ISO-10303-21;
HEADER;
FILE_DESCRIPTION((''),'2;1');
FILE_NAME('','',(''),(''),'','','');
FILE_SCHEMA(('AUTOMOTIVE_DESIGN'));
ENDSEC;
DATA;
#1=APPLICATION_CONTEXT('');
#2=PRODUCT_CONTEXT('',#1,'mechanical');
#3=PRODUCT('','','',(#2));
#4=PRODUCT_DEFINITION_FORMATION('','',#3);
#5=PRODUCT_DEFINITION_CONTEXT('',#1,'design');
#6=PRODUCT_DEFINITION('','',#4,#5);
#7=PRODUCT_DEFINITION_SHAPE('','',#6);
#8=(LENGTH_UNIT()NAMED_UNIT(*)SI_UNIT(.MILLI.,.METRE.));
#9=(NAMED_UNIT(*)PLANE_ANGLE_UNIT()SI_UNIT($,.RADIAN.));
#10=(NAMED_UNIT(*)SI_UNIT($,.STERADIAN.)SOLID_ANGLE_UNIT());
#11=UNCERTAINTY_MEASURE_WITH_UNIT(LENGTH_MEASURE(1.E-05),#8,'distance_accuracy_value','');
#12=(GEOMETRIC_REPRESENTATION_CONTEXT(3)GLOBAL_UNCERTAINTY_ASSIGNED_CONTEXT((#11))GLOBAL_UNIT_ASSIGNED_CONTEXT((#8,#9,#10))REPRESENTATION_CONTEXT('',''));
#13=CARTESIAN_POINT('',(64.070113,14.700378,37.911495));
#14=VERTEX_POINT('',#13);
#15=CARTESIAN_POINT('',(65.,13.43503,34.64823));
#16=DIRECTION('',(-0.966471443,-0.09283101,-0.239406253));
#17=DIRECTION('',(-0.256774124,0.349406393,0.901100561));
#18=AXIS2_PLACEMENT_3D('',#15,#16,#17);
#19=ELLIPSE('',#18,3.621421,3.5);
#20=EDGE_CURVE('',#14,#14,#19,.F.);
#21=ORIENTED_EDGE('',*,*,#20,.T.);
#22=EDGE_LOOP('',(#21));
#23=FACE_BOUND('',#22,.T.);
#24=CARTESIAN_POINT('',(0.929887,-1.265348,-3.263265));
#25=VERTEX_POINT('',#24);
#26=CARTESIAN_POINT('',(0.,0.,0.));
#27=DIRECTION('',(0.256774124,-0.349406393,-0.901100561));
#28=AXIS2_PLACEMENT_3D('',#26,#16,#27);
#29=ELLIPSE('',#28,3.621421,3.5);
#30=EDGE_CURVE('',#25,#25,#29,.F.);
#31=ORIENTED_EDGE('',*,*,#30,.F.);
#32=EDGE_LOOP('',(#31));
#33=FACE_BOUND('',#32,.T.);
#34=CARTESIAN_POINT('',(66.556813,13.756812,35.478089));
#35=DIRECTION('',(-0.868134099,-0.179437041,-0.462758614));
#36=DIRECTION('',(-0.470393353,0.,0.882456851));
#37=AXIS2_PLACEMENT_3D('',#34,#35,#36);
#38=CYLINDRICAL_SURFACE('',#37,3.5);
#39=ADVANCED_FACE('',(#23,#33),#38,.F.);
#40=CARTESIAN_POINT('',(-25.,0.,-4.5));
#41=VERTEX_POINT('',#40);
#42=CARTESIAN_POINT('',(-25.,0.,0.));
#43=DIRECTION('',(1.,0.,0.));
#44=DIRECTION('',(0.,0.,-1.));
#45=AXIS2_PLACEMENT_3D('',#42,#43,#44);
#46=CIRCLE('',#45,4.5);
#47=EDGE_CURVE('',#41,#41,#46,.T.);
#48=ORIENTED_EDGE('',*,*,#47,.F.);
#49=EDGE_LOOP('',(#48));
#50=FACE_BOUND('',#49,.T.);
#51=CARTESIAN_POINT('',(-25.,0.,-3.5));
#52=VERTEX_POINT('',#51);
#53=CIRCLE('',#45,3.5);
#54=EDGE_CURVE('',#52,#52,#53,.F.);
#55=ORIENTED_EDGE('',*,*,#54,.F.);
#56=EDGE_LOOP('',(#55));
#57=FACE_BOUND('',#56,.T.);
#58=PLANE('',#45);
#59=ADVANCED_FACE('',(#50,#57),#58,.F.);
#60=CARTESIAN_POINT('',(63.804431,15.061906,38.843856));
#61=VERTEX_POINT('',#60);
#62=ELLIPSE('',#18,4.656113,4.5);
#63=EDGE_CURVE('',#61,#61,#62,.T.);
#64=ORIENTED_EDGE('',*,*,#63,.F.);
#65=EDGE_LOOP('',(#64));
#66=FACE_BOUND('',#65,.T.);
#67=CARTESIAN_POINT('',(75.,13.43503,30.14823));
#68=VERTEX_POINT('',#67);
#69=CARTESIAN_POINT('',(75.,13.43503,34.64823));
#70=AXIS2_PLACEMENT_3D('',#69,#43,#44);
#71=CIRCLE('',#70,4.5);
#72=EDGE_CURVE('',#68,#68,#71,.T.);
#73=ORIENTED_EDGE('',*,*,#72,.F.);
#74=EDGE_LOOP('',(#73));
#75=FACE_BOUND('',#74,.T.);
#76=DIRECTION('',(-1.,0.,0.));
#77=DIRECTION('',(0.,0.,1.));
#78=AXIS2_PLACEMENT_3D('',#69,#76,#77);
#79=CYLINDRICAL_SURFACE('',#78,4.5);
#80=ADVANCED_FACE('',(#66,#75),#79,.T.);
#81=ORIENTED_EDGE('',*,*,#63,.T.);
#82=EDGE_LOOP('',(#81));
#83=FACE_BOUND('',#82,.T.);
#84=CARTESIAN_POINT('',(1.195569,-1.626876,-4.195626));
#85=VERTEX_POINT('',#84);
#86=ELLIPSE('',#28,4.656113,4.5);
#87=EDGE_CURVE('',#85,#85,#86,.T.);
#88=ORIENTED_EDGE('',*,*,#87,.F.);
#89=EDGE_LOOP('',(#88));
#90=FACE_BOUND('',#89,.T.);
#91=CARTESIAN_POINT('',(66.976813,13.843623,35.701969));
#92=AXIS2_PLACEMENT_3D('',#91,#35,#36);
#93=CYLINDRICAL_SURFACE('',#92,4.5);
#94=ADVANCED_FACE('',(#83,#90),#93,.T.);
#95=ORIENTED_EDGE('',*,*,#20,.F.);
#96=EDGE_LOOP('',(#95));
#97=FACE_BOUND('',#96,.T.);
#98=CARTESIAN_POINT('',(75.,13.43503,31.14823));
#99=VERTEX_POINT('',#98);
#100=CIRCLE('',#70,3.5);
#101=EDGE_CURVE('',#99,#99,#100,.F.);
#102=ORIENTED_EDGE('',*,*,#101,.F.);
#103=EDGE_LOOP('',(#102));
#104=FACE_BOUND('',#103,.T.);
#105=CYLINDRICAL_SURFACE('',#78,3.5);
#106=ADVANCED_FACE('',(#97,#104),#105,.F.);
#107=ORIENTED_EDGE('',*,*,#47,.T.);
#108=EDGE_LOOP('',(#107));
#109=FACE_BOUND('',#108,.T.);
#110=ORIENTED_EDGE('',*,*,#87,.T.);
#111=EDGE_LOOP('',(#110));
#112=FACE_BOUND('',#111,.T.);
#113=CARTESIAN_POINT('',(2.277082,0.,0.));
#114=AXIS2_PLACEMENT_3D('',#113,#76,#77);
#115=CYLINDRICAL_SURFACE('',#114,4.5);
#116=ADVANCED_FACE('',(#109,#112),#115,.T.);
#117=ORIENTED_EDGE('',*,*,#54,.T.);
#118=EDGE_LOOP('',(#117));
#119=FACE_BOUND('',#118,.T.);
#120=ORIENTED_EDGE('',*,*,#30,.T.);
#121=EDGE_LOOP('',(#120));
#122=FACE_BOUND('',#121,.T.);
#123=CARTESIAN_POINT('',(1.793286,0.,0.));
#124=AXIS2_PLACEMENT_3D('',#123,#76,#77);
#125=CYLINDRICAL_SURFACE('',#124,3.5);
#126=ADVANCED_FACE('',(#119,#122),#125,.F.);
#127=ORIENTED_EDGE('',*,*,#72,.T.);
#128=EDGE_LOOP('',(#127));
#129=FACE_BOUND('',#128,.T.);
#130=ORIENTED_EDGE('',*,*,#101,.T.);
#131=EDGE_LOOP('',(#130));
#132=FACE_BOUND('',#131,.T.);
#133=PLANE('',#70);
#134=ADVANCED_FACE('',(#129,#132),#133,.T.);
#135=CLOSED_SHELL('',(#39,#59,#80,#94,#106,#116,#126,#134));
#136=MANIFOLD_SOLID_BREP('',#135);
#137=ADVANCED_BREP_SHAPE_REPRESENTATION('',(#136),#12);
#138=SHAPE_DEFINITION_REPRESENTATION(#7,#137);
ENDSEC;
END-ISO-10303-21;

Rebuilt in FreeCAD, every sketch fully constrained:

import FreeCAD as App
import Part
import Sketcher
from FreeCAD import Vector

doc = App.newDocument("Part")
body = doc.addObject("PartDesign::Body", "Body")

sketch1 = body.newObject("Sketcher::SketchObject", "Sketch")
sketch1.AttachmentSupport = (doc.getObject("YZ_Plane"), [""])
sketch1.MapMode = "FlatFace"
sketch1.addGeometry(Part.Circle(Vector(0, 0, 0), Vector(0, 0, 1), 4.5), False)
sketch1.addGeometry(Part.Circle(Vector(0, 0, 0), Vector(0, 0, 1), 3.5), False)
sketch1.addConstraint(Sketcher.Constraint("Coincident", 0, 3, -1, 1))
sketch1.addConstraint(Sketcher.Constraint("Coincident", 1, 3, -1, 1))
sketch1.addConstraint(Sketcher.Constraint("Diameter", 0, 9.0))
sketch1.addConstraint(Sketcher.Constraint("Diameter", 1, 7.0))

sketch2 = body.newObject("Sketcher::SketchObject", "Sketch001")
sketch2.Placement = App.Placement(Vector(0, 0, 0), App.Rotation(Vector(0, -0.361527902, -0.93236129), Vector(0.999999999, 0, 0), Vector(0, -0.93236129, 0.361527902), "ZXY"))
sketch2.addGeometry(Part.LineSegment(Vector(-37, 75, 0), Vector(-37, 65, 0)), False)
sketch2.addGeometry(Part.LineSegment(Vector(-37, 65, 0), Vector(0, 0, 0)), False)
sketch2.addGeometry(Part.LineSegment(Vector(0, 0, 0), Vector(0, -25, 0)), False)
sketch2.addConstraint(Sketcher.Constraint("Coincident", 0, 2, 1, 1))
sketch2.addConstraint(Sketcher.Constraint("Coincident", 1, 2, 2, 1))
sketch2.addConstraint(Sketcher.Constraint("Vertical", 0))
sketch2.addConstraint(Sketcher.Constraint("Vertical", 2))
sketch2.addConstraint(Sketcher.Constraint("Coincident", 1, 2, -1, 1))
sketch2.addConstraint(Sketcher.Constraint("DistanceY", 0, 2, 0, 1, 10.0))
sketch2.addConstraint(Sketcher.Constraint("DistanceY", 2, 2, 2, 1, 25.0))
sketch2.addConstraint(Sketcher.Constraint("DistanceY", -1, 1, 0, 1, 75.0))
sketch2.addConstraint(Sketcher.Constraint("Distance", 1, 74.873225))
doc.recompute()

additivepipe = body.newObject("PartDesign::AdditivePipe", "AdditivePipe")
additivepipe.Profile = sketch1
additivepipe.Spine = (sketch2, ["Edge1", "Edge2", "Edge3"])
additivepipe.Transition = "Right corner"

doc.recompute()
